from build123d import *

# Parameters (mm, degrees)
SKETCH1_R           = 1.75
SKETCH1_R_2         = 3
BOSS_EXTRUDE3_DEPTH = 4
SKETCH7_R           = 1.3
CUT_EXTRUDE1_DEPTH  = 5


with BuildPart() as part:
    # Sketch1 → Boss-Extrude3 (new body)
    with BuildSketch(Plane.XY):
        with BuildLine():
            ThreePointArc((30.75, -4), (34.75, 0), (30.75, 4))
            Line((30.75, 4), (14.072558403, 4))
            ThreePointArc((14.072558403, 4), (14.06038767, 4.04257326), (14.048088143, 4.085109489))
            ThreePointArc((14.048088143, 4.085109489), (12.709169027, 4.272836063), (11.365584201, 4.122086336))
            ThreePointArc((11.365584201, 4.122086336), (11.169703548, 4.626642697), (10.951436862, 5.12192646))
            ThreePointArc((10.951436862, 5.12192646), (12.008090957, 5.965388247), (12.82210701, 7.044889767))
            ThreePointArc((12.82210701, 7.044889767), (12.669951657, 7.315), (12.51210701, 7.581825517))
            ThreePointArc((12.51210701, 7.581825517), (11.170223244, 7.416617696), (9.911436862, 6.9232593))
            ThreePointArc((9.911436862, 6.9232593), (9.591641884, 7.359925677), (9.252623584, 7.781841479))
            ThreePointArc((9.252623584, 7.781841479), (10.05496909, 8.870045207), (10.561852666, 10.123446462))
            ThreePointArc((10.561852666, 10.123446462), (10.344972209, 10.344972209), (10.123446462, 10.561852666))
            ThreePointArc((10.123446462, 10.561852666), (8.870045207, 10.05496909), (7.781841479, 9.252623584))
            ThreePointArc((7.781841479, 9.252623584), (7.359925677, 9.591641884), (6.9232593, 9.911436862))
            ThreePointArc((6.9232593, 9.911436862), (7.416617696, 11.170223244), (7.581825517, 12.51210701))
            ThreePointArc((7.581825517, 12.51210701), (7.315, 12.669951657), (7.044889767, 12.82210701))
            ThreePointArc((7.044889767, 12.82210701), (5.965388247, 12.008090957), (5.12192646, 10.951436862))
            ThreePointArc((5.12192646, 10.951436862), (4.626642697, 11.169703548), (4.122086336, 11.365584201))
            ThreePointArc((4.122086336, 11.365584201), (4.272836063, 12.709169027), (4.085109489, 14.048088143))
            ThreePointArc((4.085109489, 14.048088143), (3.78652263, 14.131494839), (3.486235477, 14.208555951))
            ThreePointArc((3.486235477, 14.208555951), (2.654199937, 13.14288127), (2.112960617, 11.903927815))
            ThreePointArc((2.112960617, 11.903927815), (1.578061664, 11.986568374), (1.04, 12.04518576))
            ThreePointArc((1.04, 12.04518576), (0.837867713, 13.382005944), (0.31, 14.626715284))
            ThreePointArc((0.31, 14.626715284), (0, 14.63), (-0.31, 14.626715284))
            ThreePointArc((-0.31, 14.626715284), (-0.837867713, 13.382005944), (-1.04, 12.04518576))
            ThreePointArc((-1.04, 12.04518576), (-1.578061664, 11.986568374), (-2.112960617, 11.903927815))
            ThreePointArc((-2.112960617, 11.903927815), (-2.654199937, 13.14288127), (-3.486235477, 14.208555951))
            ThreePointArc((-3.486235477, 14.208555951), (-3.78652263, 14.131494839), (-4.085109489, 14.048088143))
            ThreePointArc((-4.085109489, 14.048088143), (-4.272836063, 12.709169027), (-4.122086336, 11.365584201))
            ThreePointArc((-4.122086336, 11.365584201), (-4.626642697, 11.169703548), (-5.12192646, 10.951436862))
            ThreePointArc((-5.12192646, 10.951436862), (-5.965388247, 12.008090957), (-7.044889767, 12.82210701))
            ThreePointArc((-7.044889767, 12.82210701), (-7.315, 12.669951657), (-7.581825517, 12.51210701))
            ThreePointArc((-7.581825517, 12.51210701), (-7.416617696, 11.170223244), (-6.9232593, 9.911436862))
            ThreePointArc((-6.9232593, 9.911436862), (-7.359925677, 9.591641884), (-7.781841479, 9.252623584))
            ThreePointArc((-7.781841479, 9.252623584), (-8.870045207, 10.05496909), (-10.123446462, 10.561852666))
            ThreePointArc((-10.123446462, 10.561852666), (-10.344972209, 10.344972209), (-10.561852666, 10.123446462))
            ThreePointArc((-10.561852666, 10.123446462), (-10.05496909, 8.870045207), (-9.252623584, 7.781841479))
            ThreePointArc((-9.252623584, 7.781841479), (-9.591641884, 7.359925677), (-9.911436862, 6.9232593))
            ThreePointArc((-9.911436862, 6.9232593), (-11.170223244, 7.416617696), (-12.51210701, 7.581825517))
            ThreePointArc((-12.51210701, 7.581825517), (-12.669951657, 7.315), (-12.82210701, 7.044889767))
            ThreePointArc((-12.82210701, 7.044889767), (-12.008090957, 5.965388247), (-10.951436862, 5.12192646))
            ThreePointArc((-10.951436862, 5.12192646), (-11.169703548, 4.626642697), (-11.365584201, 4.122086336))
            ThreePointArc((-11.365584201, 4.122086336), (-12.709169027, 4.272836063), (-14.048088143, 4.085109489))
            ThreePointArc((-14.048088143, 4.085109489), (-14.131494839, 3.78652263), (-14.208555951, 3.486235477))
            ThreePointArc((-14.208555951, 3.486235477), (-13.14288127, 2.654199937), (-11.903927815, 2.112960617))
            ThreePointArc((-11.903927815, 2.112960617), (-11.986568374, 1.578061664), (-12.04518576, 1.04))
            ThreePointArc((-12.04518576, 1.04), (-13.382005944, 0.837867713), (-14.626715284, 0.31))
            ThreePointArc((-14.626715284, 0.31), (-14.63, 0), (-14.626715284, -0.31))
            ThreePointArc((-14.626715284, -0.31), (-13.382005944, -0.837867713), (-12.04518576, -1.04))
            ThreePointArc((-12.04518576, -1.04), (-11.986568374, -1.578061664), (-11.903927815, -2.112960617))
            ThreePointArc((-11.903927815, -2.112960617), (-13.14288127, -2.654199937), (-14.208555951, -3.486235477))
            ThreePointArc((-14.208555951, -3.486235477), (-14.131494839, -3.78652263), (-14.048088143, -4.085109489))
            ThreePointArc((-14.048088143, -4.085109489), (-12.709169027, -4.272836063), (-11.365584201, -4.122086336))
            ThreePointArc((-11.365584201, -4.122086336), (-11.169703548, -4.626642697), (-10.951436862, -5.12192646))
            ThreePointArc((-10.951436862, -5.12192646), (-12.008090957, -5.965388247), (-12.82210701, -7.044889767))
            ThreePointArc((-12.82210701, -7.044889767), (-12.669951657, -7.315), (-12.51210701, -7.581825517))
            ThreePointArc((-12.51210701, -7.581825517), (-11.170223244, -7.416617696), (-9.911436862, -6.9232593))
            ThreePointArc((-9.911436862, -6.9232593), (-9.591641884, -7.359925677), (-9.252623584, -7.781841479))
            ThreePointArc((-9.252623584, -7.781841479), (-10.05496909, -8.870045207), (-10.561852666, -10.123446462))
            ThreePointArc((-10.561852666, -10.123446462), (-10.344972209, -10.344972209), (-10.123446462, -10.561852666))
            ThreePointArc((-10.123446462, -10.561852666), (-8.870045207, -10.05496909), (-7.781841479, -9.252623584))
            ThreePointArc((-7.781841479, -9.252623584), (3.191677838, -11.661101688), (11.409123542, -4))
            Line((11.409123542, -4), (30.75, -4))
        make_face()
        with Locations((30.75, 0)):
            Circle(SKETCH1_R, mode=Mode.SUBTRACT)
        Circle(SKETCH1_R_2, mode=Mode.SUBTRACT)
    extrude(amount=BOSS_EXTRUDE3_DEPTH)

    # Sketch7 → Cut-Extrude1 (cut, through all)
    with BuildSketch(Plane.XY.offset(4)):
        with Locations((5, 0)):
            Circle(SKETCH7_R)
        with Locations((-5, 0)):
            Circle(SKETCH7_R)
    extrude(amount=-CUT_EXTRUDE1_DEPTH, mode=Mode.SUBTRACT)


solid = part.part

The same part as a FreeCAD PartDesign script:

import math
import FreeCAD as App
import Part
import Sketcher

V = App.Vector

doc = App.newDocument("Part")
body = doc.addObject("PartDesign::Body", "Body")

sketch1 = body.newObject("Sketcher::SketchObject", "Sketch")
sketch1.AttachmentSupport = (doc.getObject("XY_Plane"), [""])
sketch1.MapMode = "FlatFace"
sketch1.addGeometry([
    Part.ArcOfCircle(Part.Circle(V(30.75, 0, 0), V(0, 0, 1), 4), math.radians(-90), math.radians(90)),
    Part.LineSegment(V(30.75, 4, 0), V(14.072558, 4, 0)),
    Part.ArcOfCircle(Part.Circle(V(-0.000108, -0.000031, 0), V(0, 0, 1), 14.630112), math.radians(15.867332), math.radians(16.214149)),
    Part.ArcOfCircle(Part.Circle(V(12.63474, -1.126651, 0), V(0, 0, 1), 5.4), math.radians(74.827194), math.radians(103.593324)),
    Part.ArcOfCircle(Part.Circle(V(0, 0, 0), V(0, 0, 1), 12.09), math.radians(19.934768), math.radians(25.065232)),
    Part.ArcOfCircle(Part.Circle(V(8.137448, 9.730773, 0), V(0, 0, 1), 5.4), math.radians(-58.593324), math.radians(-29.827194)),
    Part.ArcOfCircle(Part.Circle(V(-0.000002, -0.000001, 0), V(0, 0, 1), 14.630002), math.radians(28.78585), math.radians(31.21415)),
    Part.ArcOfCircle(Part.Circle(V(12.49582, 2.18185, 0), V(0, 0, 1), 5.4), math.radians(89.827194), math.radians(118.593324)),
    Part.ArcOfCircle(Part.Circle(V(0, 0, 0), V(0, 0, 1), 12.09), math.radians(34.934768), math.radians(40.065232)),
    Part.ArcOfCircle(Part.Circle(V(5.341662, 11.505331, 0), V(0, 0, 1), 5.4), math.radians(-43.593324), math.radians(-14.827194)),
    Part.ArcOfCircle(Part.Circle(V(0, 0, 0), V(0, 0, 1), 14.63), math.radians(43.78585), math.radians(46.21415)),
    Part.ArcOfCircle(Part.Circle(V(11.505331, 5.341662, 0), V(0, 0, 1), 5.4), math.radians(104.827194), math.radians(133.593324)),
    Part.ArcOfCircle(Part.Circle(V(0, 0, 0), V(0, 0, 1), 12.09), math.radians(49.934768), math.radians(55.065232)),
    Part.ArcOfCircle(Part.Circle(V(2.18185, 12.49582, 0), V(0, 0, 1), 5.4), math.radians(-28.593324), math.radians(0.172806)),
    Part.ArcOfCircle(Part.Circle(V(-0.000001, -0.000002, 0), V(0, 0, 1), 14.630002), math.radians(58.78585), math.radians(61.21415)),
    Part.ArcOfCircle(Part.Circle(V(9.730773, 8.137448, 0), V(0, 0, 1), 5.4), math.radians(119.827194), math.radians(148.593324)),
    Part.ArcOfCircle(Part.Circle(V(0, 0, 0), V(0, 0, 1), 12.09), math.radians(64.934768), math.radians(70.065232)),
    Part.ArcOfCircle(Part.Circle(V(-1.126651, 12.63474, 0), V(0, 0, 1), 5.4), math.radians(-13.593324), math.radians(15.172806)),
    Part.ArcOfCircle(Part.Circle(V(0, 0, 0), V(0, 0, 1), 14.63), math.radians(73.78585), math.radians(76.21415)),
    Part.ArcOfCircle(Part.Circle(V(7.293078, 10.37868, 0), V(0, 0, 1), 5.4), math.radians(134.827194), math.radians(163.593324)),
    Part.ArcOfCircle(Part.Circle(V(0, 0, 0), V(0, 0, 1), 12.09), math.radians(79.934768), math.radians(85.065232)),
    Part.ArcOfCircle(Part.Circle(V(-4.358373, 11.912623, 0), V(0, 0, 1), 5.4), math.radians(1.406676), math.radians(30.172806)),
    Part.ArcOfCircle(Part.Circle(V(0, 0, 0), V(0, 0, 1), 14.63), math.radians(88.78585), math.radians(91.21415)),
    Part.ArcOfCircle(Part.Circle(V(4.358373, 11.912623, 0), V(0, 0, 1), 5.4), math.radians(149.827194), math.radians(178.593324)),
    Part.ArcOfCircle(Part.Circle(V(0, 0, 0), V(0, 0, 1), 12.09), math.radians(94.934768), math.radians(100.065232)),
    Part.ArcOfCircle(Part.Circle(V(-7.293078, 10.37868, 0), V(0, 0, 1), 5.4), math.radians(16.406676), math.radians(45.172806)),
    Part.ArcOfCircle(Part.Circle(V(0, 0, 0), V(0, 0, 1), 14.63), math.radians(103.78585), math.radians(106.21415)),
    Part.ArcOfCircle(Part.Circle(V(1.126651, 12.63474, 0), V(0, 0, 1), 5.4), math.radians(164.827194), math.radians(193.593324)),
    Part.ArcOfCircle(Part.Circle(V(0, 0, 0), V(0, 0, 1), 12.09), math.radians(109.934768), math.radians(115.065232)),
    Part.ArcOfCircle(Part.Circle(V(-9.730773, 8.137448, 0), V(0, 0, 1), 5.4), math.radians(31.406676), math.radians(60.172806)),
    Part.ArcOfCircle(Part.Circle(V(0.000001, -0.000002, 0), V(0, 0, 1), 14.630002), math.radians(118.78585), math.radians(121.21415)),
    Part.ArcOfCircle(Part.Circle(V(-2.18185, 12.49582, 0), V(0, 0, 1), 5.4), math.radians(179.827194), math.radians(208.593324)),
    Part.ArcOfCircle(Part.Circle(V(0, 0, 0), V(0, 0, 1), 12.09), math.radians(124.934768), math.radians(130.065232)),
    Part.ArcOfCircle(Part.Circle(V(-11.505331, 5.341662, 0), V(0, 0, 1), 5.4), math.radians(46.406676), math.radians(75.172806)),
    Part.ArcOfCircle(Part.Circle(V(0, 0, 0), V(0, 0, 1), 14.63), math.radians(133.78585), math.radians(136.21415)),
    Part.ArcOfCircle(Part.Circle(V(-5.341662, 11.505331, 0), V(0, 0, 1), 5.4), math.radians(-165.172806), math.radians(-136.406676)),
    Part.ArcOfCircle(Part.Circle(V(0, 0, 0), V(0, 0, 1), 12.09), math.radians(139.934768), math.radians(145.065232)),
    Part.ArcOfCircle(Part.Circle(V(-12.49582, 2.18185, 0), V(0, 0, 1), 5.4), math.radians(61.406676), math.radians(90.172806)),
    Part.ArcOfCircle(Part.Circle(V(0.000002, -0.000001, 0), V(0, 0, 1), 14.630002), math.radians(148.78585), math.radians(151.21415)),
    Part.ArcOfCircle(Part.Circle(V(-8.137448, 9.730773, 0), V(0, 0, 1), 5.4), math.radians(-150.172806), math.radians(-121.406676)),
    Part.ArcOfCircle(Part.Circle(V(0, 0, 0), V(0, 0, 1), 12.09), math.radians(154.934768), math.radians(160.065232)),
    Part.ArcOfCircle(Part.Circle(V(-12.63474, -1.126651, 0), V(0, 0, 1), 5.4), math.radians(76.406676), math.radians(105.172806)),
    Part.ArcOfCircle(Part.Circle(V(0, 0, 0), V(0, 0, 1), 14.63), math.radians(163.78585), math.radians(166.21415)),
    Part.ArcOfCircle(Part.Circle(V(-10.37868, 7.293078, 0), V(0, 0, 1), 5.4), math.radians(-135.172806), math.radians(-106.406676)),
    Part.ArcOfCircle(Part.Circle(V(0, 0, 0), V(0, 0, 1), 12.09), math.radians(169.934768), math.radians(175.065232)),
    Part.ArcOfCircle(Part.Circle(V(-11.912623, -4.358373, 0), V(0, 0, 1), 5.4), math.radians(91.406676), math.radians(120.172806)),
    Part.ArcOfCircle(Part.Circle(V(0, 0, 0), V(0, 0, 1), 14.63), math.radians(178.78585), math.radians(181.21415)),
    Part.ArcOfCircle(Part.Circle(V(-11.912623, 4.358373, 0), V(0, 0, 1), 5.4), math.radians(-120.172806), math.radians(-91.406676)),
    Part.ArcOfCircle(Part.Circle(V(0, 0, 0), V(0, 0, 1), 12.09), math.radians(-175.065232), math.radians(-169.934768)),
    Part.ArcOfCircle(Part.Circle(V(-10.37868, -7.293078, 0), V(0, 0, 1), 5.4), math.radians(106.406676), math.radians(135.172806)),
    Part.ArcOfCircle(Part.Circle(V(0, 0, 0), V(0, 0, 1), 14.63), math.radians(-166.21415), math.radians(-163.78585)),
    Part.ArcOfCircle(Part.Circle(V(-12.63474, 1.126651, 0), V(0, 0, 1), 5.4), math.radians(-105.172806), math.radians(-76.406676)),
    Part.ArcOfCircle(Part.Circle(V(0, 0, 0), V(0, 0, 1), 12.09), math.radians(-160.065232), math.radians(-154.934768)),
    Part.ArcOfCircle(Part.Circle(V(-8.137448, -9.730773, 0), V(0, 0, 1), 5.4), math.radians(121.406676), math.radians(150.172806)),
    Part.ArcOfCircle(Part.Circle(V(0.000002, 0.000001, 0), V(0, 0, 1), 14.630002), math.radians(-151.21415), math.radians(-148.78585)),
    Part.ArcOfCircle(Part.Circle(V(-12.49582, -2.18185, 0), V(0, 0, 1), 5.4), math.radians(-90.172806), math.radians(-61.406676)),
    Part.ArcOfCircle(Part.Circle(V(0, 0, 0), V(0, 0, 1), 12.09), math.radians(-145.065232), math.radians(-139.934768)),
    Part.ArcOfCircle(Part.Circle(V(-5.341662, -11.505331, 0), V(0, 0, 1), 5.4), math.radians(136.406676), math.radians(165.172806)),
    Part.ArcOfCircle(Part.Circle(V(0, 0, 0), V(0, 0, 1), 14.63), math.radians(-136.21415), math.radians(-133.78585)),
    Part.ArcOfCircle(Part.Circle(V(-11.505331, -5.341662, 0), V(0, 0, 1), 5.4), math.radians(-75.172806), math.radians(-46.406676)),
    Part.ArcOfCircle(Part.Circle(V(0, 0, 0), V(0, 0, 1), 12.09), math.radians(-130.065232), math.radians(-19.320493)),
    Part.LineSegment(V(11.409124, -4, 0), V(30.75, -4, 0)),
    Part.Circle(V(0, 0, 0), V(0, 0, 1), 3),
    Part.Circle(V(30.75, 0, 0), V(0, 0, 1), 1.75),
], False)
sketch1.addConstraint([
    Sketcher.Constraint("Coincident", 0, 2, 1, 1),
    Sketcher.Constraint("Coincident", 1, 2, 2, 1),
    Sketcher.Constraint("Coincident", 2, 2, 3, 1),
    Sketcher.Constraint("Coincident", 3, 2, 4, 1),
    Sketcher.Constraint("Coincident", 4, 2, 5, 1),
    Sketcher.Constraint("Coincident", 5, 2, 6, 1),
    Sketcher.Constraint("Coincident", 6, 2, 7, 1),
    Sketcher.Constraint("Coincident", 7, 2, 8, 1),
    Sketcher.Constraint("Coincident", 8, 2, 9, 1),
    Sketcher.Constraint("Coincident", 9, 2, 10, 1),
    Sketcher.Constraint("Coincident", 10, 2, 11, 1),
    Sketcher.Constraint("Coincident", 11, 2, 12, 1),
    Sketcher.Constraint("Coincident", 12, 2, 13, 1),
    Sketcher.Constraint("Coincident", 13, 2, 14, 1),
    Sketcher.Constraint("Coincident", 14, 2, 15, 1),
    Sketcher.Constraint("Coincident", 15, 2, 16, 1),
    Sketcher.Constraint("Coincident", 16, 2, 17, 1),
    Sketcher.Constraint("Coincident", 17, 2, 18, 1),
    Sketcher.Constraint("Coincident", 18, 2, 19, 1),
    Sketcher.Constraint("Coincident", 19, 2, 20, 1),
    Sketcher.Constraint("Coincident", 20, 2, 21, 1),
    Sketcher.Constraint("Coincident", 21, 2, 22, 1),
    Sketcher.Constraint("Coincident", 22, 2, 23, 1),
    Sketcher.Constraint("Coincident", 23, 2, 24, 1),
    Sketcher.Constraint("Coincident", 24, 2, 25, 1),
    Sketcher.Constraint("Coincident", 25, 2, 26, 1),
    Sketcher.Constraint("Coincident", 26, 2, 27, 1),
    Sketcher.Constraint("Coincident", 27, 2, 28, 1),
    Sketcher.Constraint("Coincident", 28, 2, 29, 1),
    Sketcher.Constraint("Coincident", 29, 2, 30, 1),
    Sketcher.Constraint("Coincident", 30, 2, 31, 1),
    Sketcher.Constraint("Coincident", 31, 2, 32, 1),
    Sketcher.Constraint("Coincident", 32, 2, 33, 1),
    Sketcher.Constraint("Coincident", 33, 2, 34, 1),
    Sketcher.Constraint("Coincident", 34, 2, 35, 1),
    Sketcher.Constraint("Coincident", 35, 2, 36, 1),
    Sketcher.Constraint("Coincident", 36, 2, 37, 1),
    Sketcher.Constraint("Coincident", 37, 2, 38, 1),
    Sketcher.Constraint("Coincident", 38, 2, 39, 1),
    Sketcher.Constraint("Coincident", 39, 2, 40, 1),
    Sketcher.Constraint("Coincident", 40, 2, 41, 1),
    Sketcher.Constraint("Coincident", 41, 2, 42, 1),
    Sketcher.Constraint("Coincident", 42, 2, 43, 1),
    Sketcher.Constraint("Coincident", 43, 2, 44, 1),
    Sketcher.Constraint("Coincident", 44, 2, 45, 1),
    Sketcher.Constraint("Coincident", 45, 2, 46, 1),
    Sketcher.Constraint("Coincident", 46, 2, 47, 1),
    Sketcher.Constraint("Coincident", 47, 2, 48, 1),
    Sketcher.Constraint("Coincident", 48, 2, 49, 1),
    Sketcher.Constraint("Coincident", 49, 2, 50, 1),
    Sketcher.Constraint("Coincident", 50, 2, 51, 1),
    Sketcher.Constraint("Coincident", 51, 2, 52, 1),
    Sketcher.Constraint("Coincident", 52, 2, 53, 1),
    Sketcher.Constraint("Coincident", 53, 2, 54, 1),
    Sketcher.Constraint("Coincident", 54, 2, 55, 1),
    Sketcher.Constraint("Coincident", 55, 2, 56, 1),
    Sketcher.Constraint("Coincident", 56, 2, 57, 1),
    Sketcher.Constraint("Coincident", 57, 2, 58, 1),
    Sketcher.Constraint("Coincident", 58, 2, 59, 1),
    Sketcher.Constraint("Coincident", 59, 2, 60, 1),
    Sketcher.Constraint("Coincident", 60, 2, 61, 1),
    Sketcher.Constraint("Coincident", 61, 2, 0, 1),
    Sketcher.Constraint("Horizontal", 1),
    Sketcher.Constraint("Horizontal", 61),
    Sketcher.Constraint("Coincident", 4, 3, -1, 1),
    Sketcher.Constraint("Coincident", 6, 3, -1, 1),
    Sketcher.Constraint("Coincident", 8, 3, -1, 1),
    Sketcher.Constraint("Coincident", 10, 3, -1, 1),
    Sketcher.Constraint("Coincident", 12, 3, -1, 1),
    Sketcher.Constraint("Coincident", 14, 3, -1, 1),
    Sketcher.Constraint("Coincident", 16, 3, -1, 1),
    Sketcher.Constraint("Coincident", 18, 3, -1, 1),
    Sketcher.Constraint("Coincident", 20, 3, -1, 1),
    Sketcher.Constraint("Coincident", 22, 3, -1, 1),
    Sketcher.Constraint("Coincident", 24, 3, -1, 1),
    Sketcher.Constraint("Coincident", 26, 3, -1, 1),
    Sketcher.Constraint("Coincident", 28, 3, -1, 1),
    Sketcher.Constraint("Coincident", 30, 3, -1, 1),
    Sketcher.Constraint("Coincident", 32, 3, -1, 1),
    Sketcher.Constraint("Coincident", 34, 3, -1, 1),
    Sketcher.Constraint("Coincident", 36, 3, -1, 1),
    Sketcher.Constraint("Coincident", 38, 3, -1, 1),
    Sketcher.Constraint("Coincident", 40, 3, -1, 1),
    Sketcher.Constraint("Coincident", 42, 3, -1, 1),
    Sketcher.Constraint("Coincident", 44, 3, -1, 1),
    Sketcher.Constraint("Coincident", 46, 3, -1, 1),
    Sketcher.Constraint("Coincident", 48, 3, -1, 1),
    Sketcher.Constraint("Coincident", 50, 3, -1, 1),
    Sketcher.Constraint("Coincident", 52, 3, -1, 1),
    Sketcher.Constraint("Coincident", 54, 3, -1, 1),
    Sketcher.Constraint("Coincident", 56, 3, -1, 1),
    Sketcher.Constraint("Coincident", 58, 3, -1, 1),
    Sketcher.Constraint("Coincident", 60, 3, -1, 1),
    Sketcher.Constraint("Coincident", 62, 3, -1, 1),
    Sketcher.Constraint("Coincident", 63, 3, 0, 3),
    Sketcher.Constraint("PointOnObject", 0, 3, -1),
    Sketcher.Constraint("Diameter", 62, 6.0),
    Sketcher.Constraint("Radius", 0, 4.0),
    Sketcher.Constraint("Diameter", 63, 3.5),
    Sketcher.Constraint("Radius", 3, 5.4),
    Sketcher.Constraint("Radius", 5, 5.4),
    Sketcher.Constraint("Radius", 7, 5.4),
    Sketcher.Constraint("Radius", 9, 5.4),
    Sketcher.Constraint("Radius", 11, 5.4),
    Sketcher.Constraint("Radius", 13, 5.4),
    Sketcher.Constraint("Radius", 15, 5.4),
    Sketcher.Constraint("Radius", 17, 5.4),
    Sketcher.Constraint("Radius", 19, 5.4),
    Sketcher.Constraint("Radius", 21, 5.4),
    Sketcher.Constraint("Radius", 23, 5.4),
    Sketcher.Constraint("Radius", 25, 5.4),
    Sketcher.Constraint("Radius", 27, 5.4),
    Sketcher.Constraint("Radius", 29, 5.4),
    Sketcher.Constraint("Radius", 31, 5.4),
    Sketcher.Constraint("Radius", 33, 5.4),
    Sketcher.Constraint("Radius", 35, 5.4),
    Sketcher.Constraint("Radius", 37, 5.4),
    Sketcher.Constraint("Radius", 39, 5.4),
    Sketcher.Constraint("Radius", 41, 5.4),
    Sketcher.Constraint("Radius", 43, 5.4),
    Sketcher.Constraint("Radius", 45, 5.4),
    Sketcher.Constraint("Radius", 47, 5.4),
    Sketcher.Constraint("Radius", 49, 5.4),
    Sketcher.Constraint("Radius", 51, 5.4),
    Sketcher.Constraint("Radius", 53, 5.4),
    Sketcher.Constraint("Radius", 55, 5.4),
    Sketcher.Constraint("Radius", 57, 5.4),
    Sketcher.Constraint("Radius", 59, 5.4),
    Sketcher.Constraint("Radius", 4, 12.09),
    Sketcher.Constraint("Radius", 6, 14.630002),
    Sketcher.Constraint("Radius", 8, 12.09),
    Sketcher.Constraint("Radius", 10, 14.63),
    Sketcher.Constraint("Radius", 12, 12.09),
    Sketcher.Constraint("Radius", 14, 14.630002),
    Sketcher.Constraint("Radius", 16, 12.09),
    Sketcher.Constraint("Radius", 18, 14.63),
    Sketcher.Constraint("Radius", 20, 12.09),
    Sketcher.Constraint("Radius", 22, 14.63),
    Sketcher.Constraint("Radius", 24, 12.09),
    Sketcher.Constraint("Radius", 26, 14.63),
    Sketcher.Constraint("Radius", 28, 12.09),
    Sketcher.Constraint("Radius", 30, 14.630002),
    Sketcher.Constraint("Radius", 32, 12.09),
    Sketcher.Constraint("Radius", 34, 14.63),
    Sketcher.Constraint("Radius", 36, 12.09),
    Sketcher.Constraint("Radius", 38, 14.630002),
    Sketcher.Constraint("Radius", 40, 12.09),
    Sketcher.Constraint("Radius", 42, 14.63),
    Sketcher.Constraint("Radius", 44, 12.09),
    Sketcher.Constraint("Radius", 46, 14.63),
    Sketcher.Constraint("Radius", 48, 12.09),
    Sketcher.Constraint("Radius", 50, 14.63),
    Sketcher.Constraint("Radius", 52, 12.09),
    Sketcher.Constraint("Radius", 54, 14.630002),
    Sketcher.Constraint("Radius", 56, 12.09),
    Sketcher.Constraint("Radius", 58, 14.63),
    Sketcher.Constraint("Radius", 60, 12.09),
    Sketcher.Constraint("DistanceX", -1, 1, 0, 3, 30.75),
    Sketcher.Constraint("DistanceX", -1, 1, 0, 2, 30.75),
    Sketcher.Constraint("DistanceX", -1, 1, 20, 2, 1.04),
    Sketcher.Constraint("DistanceX", -1, 1, 21, 2, 0.31),
    Sketcher.Constraint("DistanceX", 22, 2, -1, 1, 0.31),
    Sketcher.Constraint("DistanceX", 23, 2, -1, 1, 1.04),
    Sketcher.Constraint("DistanceY", -1, 1, 44, 2, 1.04),
    Sketcher.Constraint("DistanceY", -1, 1, 45, 2, 0.31),
    Sketcher.Constraint("DistanceY", 46, 2, -1, 1, 0.31),
    Sketcher.Constraint("DistanceY", 47, 2, -1, 1, 1.04),
    Sketcher.Constraint("DistanceX", -1, 1, 61, 2, 30.75),
    Sketcher.Constraint("Radius", 2, 14.630112),
    Sketcher.Constraint("DistanceX", 1, 2, 1, 1, 16.677442),
    Sketcher.Constraint("DistanceX", 2, 3, -1, 1, 0.000108),
    Sketcher.Constraint("DistanceX", -1, 1, 3, 3, 12.63474),
    Sketcher.Constraint("DistanceY", 3, 3, -1, 1, 1.126651),
    Sketcher.Constraint("DistanceX", -1, 1, 7, 3, 12.49582),
    Sketcher.Constraint("DistanceY", -1, 1, 7, 3, 2.18185),
    Sketcher.Constraint("DistanceX", -1, 1, 9, 3, 5.341662),
    Sketcher.Constraint("DistanceY", -1, 1, 9, 3, 11.505331),
    Sketcher.Constraint("DistanceX", -1, 1, 11, 3, 11.505331),
    Sketcher.Constraint("DistanceY", -1, 1, 11, 3, 5.341662),
    Sketcher.Constraint("DistanceX", -1, 1, 13, 3, 2.18185),
    Sketcher.Constraint("DistanceY", -1, 1, 13, 3, 12.49582),
    Sketcher.Constraint("DistanceX", 17, 3, -1, 1, 1.126651),
    Sketcher.Constraint("DistanceY", -1, 1, 17, 3, 12.63474),
    Sketcher.Constraint("DistanceX", -1, 1, 19, 3, 7.293078),
    Sketcher.Constraint("DistanceY", -1, 1, 19, 3, 10.37868),
    Sketcher.Constraint("DistanceX", 25, 3, -1, 1, 7.293078),
    Sketcher.Constraint("DistanceY", -1, 1, 25, 3, 10.37868),
    Sketcher.Constraint("DistanceX", -1, 1, 27, 3, 1.126651),
    Sketcher.Constraint("DistanceY", -1, 1, 27, 3, 12.63474),
    Sketcher.Constraint("DistanceX", 31, 3, -1, 1, 2.18185),
    Sketcher.Constraint("DistanceY", -1, 1, 31, 3, 12.49582),
    Sketcher.Constraint("DistanceX", 33, 3, -1, 1, 11.505331),
    Sketcher.Constraint("DistanceY", -1, 1, 33, 3, 5.341662),
    Sketcher.Constraint("DistanceX", 35, 3, -1, 1, 5.341662),
    Sketcher.Constraint("DistanceY", -1, 1, 35, 3, 11.505331),
    Sketcher.Constraint("DistanceX", 37, 3, -1, 1, 12.49582),
    Sketcher.Constraint("DistanceY", -1, 1, 37, 3, 2.18185),
    Sketcher.Constraint("DistanceX", 41, 3, -1, 1, 12.63474),
    Sketcher.Constraint("DistanceY", 41, 3, -1, 1, 1.126651),
    Sketcher.Constraint("DistanceX", 43, 3, -1, 1, 10.37868),
    Sketcher.Constraint("DistanceY", -1, 1, 43, 3, 7.293078),
    Sketcher.Constraint("DistanceX", 49, 3, -1, 1, 10.37868),
    Sketcher.Constraint("DistanceY", 49, 3, -1, 1, 7.293078),
    Sketcher.Constraint("DistanceX", 51, 3, -1, 1, 12.63474),
    Sketcher.Constraint("DistanceY", -1, 1, 51, 3, 1.126651),
    Sketcher.Constraint("DistanceX", 55, 3, -1, 1, 12.49582),
    Sketcher.Constraint("DistanceY", 55, 3, -1, 1, 2.18185),
    Sketcher.Constraint("DistanceX", 57, 3, -1, 1, 5.341662),
    Sketcher.Constraint("DistanceY", 57, 3, -1, 1, 11.505331),
    Sketcher.Constraint("DistanceX", 59, 3, -1, 1, 11.505331),
    Sketcher.Constraint("DistanceY", 59, 3, -1, 1, 5.341662),
    Sketcher.Constraint("DistanceY", -1, 1, 5, 2, 7.04489),
    Sketcher.Constraint("DistanceX", -1, 1, 14, 2, 7.04489),
    Sketcher.Constraint("DistanceX", 29, 2, -1, 1, 7.04489),
    Sketcher.Constraint("DistanceY", -1, 1, 38, 2, 7.04489),
    Sketcher.Constraint("DistanceY", 53, 2, -1, 1, 7.04489),
    Sketcher.Constraint("DistanceX", -1, 1, 5, 3, 8.137448),
    Sketcher.Constraint("DistanceX", -1, 1, 15, 3, 9.730773),
    Sketcher.Constraint("DistanceX", 29, 3, -1, 1, 9.730773),
    Sketcher.Constraint("DistanceX", 39, 3, -1, 1, 8.137448),
    Sketcher.Constraint("DistanceX", 53, 3, -1, 1, 8.137448),
])
pad1 = body.newObject("PartDesign::Pad", "Pad")
pad1.Profile = sketch1
pad1.Length = 4

sketch2 = body.newObject("Sketcher::SketchObject", "Sketch001")
sketch2.AttachmentSupport = (doc.getObject("XY_Plane"), [""])
sketch2.MapMode = "FlatFace"
sketch2.AttachmentOffset = App.Placement(V(0, 0, 4), App.Rotation())
sketch2.addGeometry([
    Part.Circle(V(5, 0, 0), V(0, 0, 1), 1.3),
    Part.Circle(V(-5, 0, 0), V(0, 0, 1), 1.3),
], False)
sketch2.addConstraint([
    Sketcher.Constraint("Equal", 0, 1),
    Sketcher.Constraint("Symmetric", 0, 3, 1, 3, -1, 1),
    Sketcher.Constraint("PointOnObject", 0, 3, -1),
    Sketcher.Constraint("Diameter", 0, 2.6),
    Sketcher.Constraint("DistanceX", -1, 1, 0, 3, 5.0),
])
pocket1 = body.newObject("PartDesign::Pocket", "Pocket")
pocket1.Profile = sketch2
pocket1.Type = "ThroughAll"

doc.recompute()
